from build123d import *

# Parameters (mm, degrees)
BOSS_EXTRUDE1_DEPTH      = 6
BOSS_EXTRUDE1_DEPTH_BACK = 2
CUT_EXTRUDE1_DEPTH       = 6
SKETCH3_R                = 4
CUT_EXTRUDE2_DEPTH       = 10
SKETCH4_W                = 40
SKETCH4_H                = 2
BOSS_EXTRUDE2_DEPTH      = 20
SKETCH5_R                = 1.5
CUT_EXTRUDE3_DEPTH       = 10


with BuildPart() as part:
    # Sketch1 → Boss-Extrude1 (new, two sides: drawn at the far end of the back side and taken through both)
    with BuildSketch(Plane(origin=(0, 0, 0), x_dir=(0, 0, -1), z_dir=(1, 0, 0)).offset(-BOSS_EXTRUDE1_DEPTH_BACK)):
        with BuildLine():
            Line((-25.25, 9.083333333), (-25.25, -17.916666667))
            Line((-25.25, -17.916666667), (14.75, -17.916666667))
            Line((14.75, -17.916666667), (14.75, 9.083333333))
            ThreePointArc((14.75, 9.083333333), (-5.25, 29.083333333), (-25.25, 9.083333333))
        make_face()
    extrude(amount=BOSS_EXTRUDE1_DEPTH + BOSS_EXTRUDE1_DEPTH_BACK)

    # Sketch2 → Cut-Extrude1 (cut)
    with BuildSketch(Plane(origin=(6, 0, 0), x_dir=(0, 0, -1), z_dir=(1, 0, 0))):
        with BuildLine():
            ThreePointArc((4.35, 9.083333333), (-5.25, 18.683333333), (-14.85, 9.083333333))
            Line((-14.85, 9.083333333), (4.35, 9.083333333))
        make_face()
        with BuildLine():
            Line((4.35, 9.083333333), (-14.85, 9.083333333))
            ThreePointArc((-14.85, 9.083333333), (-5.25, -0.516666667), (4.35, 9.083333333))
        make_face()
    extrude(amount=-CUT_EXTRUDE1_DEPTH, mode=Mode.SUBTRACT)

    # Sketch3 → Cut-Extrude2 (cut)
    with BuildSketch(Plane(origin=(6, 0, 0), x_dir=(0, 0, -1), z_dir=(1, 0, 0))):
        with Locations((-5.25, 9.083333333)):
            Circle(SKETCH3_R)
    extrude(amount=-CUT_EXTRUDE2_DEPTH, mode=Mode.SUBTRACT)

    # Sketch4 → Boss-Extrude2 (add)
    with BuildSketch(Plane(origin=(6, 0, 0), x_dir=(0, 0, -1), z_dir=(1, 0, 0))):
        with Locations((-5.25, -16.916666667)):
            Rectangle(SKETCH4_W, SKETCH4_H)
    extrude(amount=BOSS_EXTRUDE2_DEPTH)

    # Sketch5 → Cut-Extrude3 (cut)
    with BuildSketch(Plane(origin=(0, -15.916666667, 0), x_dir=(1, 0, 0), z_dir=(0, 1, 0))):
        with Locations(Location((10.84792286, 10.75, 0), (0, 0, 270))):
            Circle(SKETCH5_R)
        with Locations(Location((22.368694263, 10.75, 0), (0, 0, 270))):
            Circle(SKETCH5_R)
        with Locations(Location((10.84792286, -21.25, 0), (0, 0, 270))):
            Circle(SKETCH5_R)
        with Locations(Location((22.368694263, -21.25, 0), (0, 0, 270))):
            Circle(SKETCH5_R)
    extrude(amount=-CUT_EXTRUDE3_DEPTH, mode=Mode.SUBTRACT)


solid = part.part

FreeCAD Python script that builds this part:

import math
import FreeCAD as App
import Part
import Sketcher


def add_polygon(sketch, points):
    """Adds a closed chain of lines whose ends are joined by coincident constraints."""
    first, n = sketch.GeometryCount, len(points)
    for a, b in zip(points, points[1:] + points[:1]):
        sketch.addGeometry(Part.LineSegment(App.Vector(*a, 0), App.Vector(*b, 0)), False)
    for i in range(n):
        sketch.addConstraint(Sketcher.Constraint("Coincident", first + i, 2, first + (i + 1) % n, 1))

doc = App.newDocument("Part")
body = doc.addObject("PartDesign::Body", "Body")

sketch1 = doc.addObject("Sketcher::SketchObject", "Sketch")
body.addObject(sketch1)
sketch1.AttachmentSupport = (doc.YZ_Plane, [""])
sketch1.MapMode = "FlatFace"
sketch1.addGeometry([
    Part.LineSegment(App.Vector(9, 25, 0), App.Vector(-18, 25, 0)),
    Part.LineSegment(App.Vector(-18, 25, 0), App.Vector(-18, -15, 0)),
    Part.LineSegment(App.Vector(-18, -15, 0), App.Vector(9, -15, 0)),
    Part.ArcOfCircle(Part.Circle(App.Vector(9, 5, 0), App.Vector(0, 0, 1), 20), math.radians(-90), math.radians(90)),
], False)
sketch1.addConstraint([
    Sketcher.Constraint("Coincident", 0, 2, 1, 1),
    Sketcher.Constraint("Coincident", 1, 2, 2, 1),
    Sketcher.Constraint("Tangent", 2, 2, 3, 1),
    Sketcher.Constraint("Tangent", 3, 2, 0, 1),
    Sketcher.Constraint("Horizontal", 0),
    Sketcher.Constraint("Vertical", 1),
    Sketcher.Constraint("Horizontal", 2),
    Sketcher.Constraint("Radius", 3, 20.0),
    Sketcher.Constraint("DistanceX", 0, 2, 0, 1, 27.0),
    Sketcher.Constraint("DistanceY", -1, 1, 3, 3, 5.25),
    Sketcher.Constraint("DistanceX", -1, 1, 3, 3, 9.083333),
])
pad1 = doc.addObject("PartDesign::Pad", "Pad")
body.addObject(pad1)
pad1.Profile = sketch1
pad1.Type = "TwoLengths"
pad1.Length = 6
pad1.Length2 = 2

sketch2 = doc.addObject("Sketcher::SketchObject", "Sketch001")
body.addObject(sketch2)
sketch2.AttachmentSupport = (doc.YZ_Plane, [""])
sketch2.MapMode = "FlatFace"
sketch2.AttachmentOffset = App.Placement(App.Vector(0, 0, 6), App.Rotation())
sketch2.addGeometry(Part.Circle(App.Vector(9, 5, 0), App.Vector(0, 0, 1), 10), False)
sketch2.addConstraint([
    Sketcher.Constraint("Diameter", 0, 19.2),
    Sketcher.Constraint("DistanceY", -1, 1, 0, 3, 5.25),
    Sketcher.Constraint("DistanceX", -1, 1, 0, 3, 9.083333),
])
pocket1 = doc.addObject("PartDesign::Pocket", "Pocket")
body.addObject(pocket1)
pocket1.Profile = sketch2
pocket1.Length = 6

sketch3 = doc.addObject("Sketcher::SketchObject", "Sketch002")
body.addObject(sketch3)
sketch3.AttachmentSupport = (doc.YZ_Plane, [""])
sketch3.MapMode = "FlatFace"
sketch3.AttachmentOffset = App.Placement(App.Vector(0, 0, 6), App.Rotation())
sketch3.addGeometry(Part.Circle(App.Vector(9.1, 5.2, 0), App.Vector(0, 0, 1), 4), False)
sketch3.addConstraint([
    Sketcher.Constraint("Diameter", 0, 8.0),
    Sketcher.Constraint("DistanceY", -1, 1, 0, 3, 5.25),
    Sketcher.Constraint("DistanceX", -1, 1, 0, 3, 9.083333),
])
pocket2 = doc.addObject("PartDesign::Pocket", "Pocket001")
body.addObject(pocket2)
pocket2.Profile = sketch3
pocket2.Length = 10

sketch4 = doc.addObject("Sketcher::SketchObject", "Sketch003")
body.addObject(sketch4)
sketch4.AttachmentSupport = (doc.YZ_Plane, [""])
sketch4.MapMode = "FlatFace"
sketch4.AttachmentOffset = App.Placement(App.Vector(0, 0, 6), App.Rotation())
add_polygon(sketch4, [(-15.9, 25.2), (-17.9, 25.2), (-17.9, -14.8), (-15.9, -14.8)])
sketch4.addConstraint([
    Sketcher.Constraint("Horizontal", 0),
    Sketcher.Constraint("Vertical", 1),
    Sketcher.Constraint("Horizontal", 2),
    Sketcher.Constraint("Vertical", 3),
    Sketcher.Constraint("DistanceX", 0, 2, 0, 1, 2.0),
    Sketcher.Constraint("DistanceY", 1, 2, 1, 1, 40.0),
    Sketcher.Constraint("DistanceY", -1, 1, 0, 2, 25.25),
    Sketcher.Constraint("DistanceX", 0, 2, -1, 1, 17.916667),
])
pad2 = doc.addObject("PartDesign::Pad", "Pad001")
body.addObject(pad2)
pad2.Profile = sketch4
pad2.Length = 20

sketch5 = doc.addObject("Sketcher::SketchObject", "Sketch004")
body.addObject(sketch5)
sketch5.AttachmentSupport = (doc.XZ_Plane, [""])
sketch5.MapMode = "FlatFace"
sketch5.AttachmentOffset = App.Placement(App.Vector(0, 0, 15.916667), App.Rotation())
sketch5.addGeometry([
    Part.Circle(App.Vector(10.8, -10.8, 0), App.Vector(0, 0, 1), 1.5),
    Part.Circle(App.Vector(22.4, -10.8, 0), App.Vector(0, 0, 1), 1.5),
    Part.Circle(App.Vector(10.8, 21.2, 0), App.Vector(0, 0, 1), 1.5),
    Part.Circle(App.Vector(22.4, 21.2, 0), App.Vector(0, 0, 1), 1.5),
], False)
sketch5.addConstraint([
    Sketcher.Constraint("Equal", 0, 1),
    Sketcher.Constraint("Equal", 1, 2),
    Sketcher.Constraint("Equal", 2, 3),
    Sketcher.Constraint("Horizontal", 0, 3, 1, 3),
    Sketcher.Constraint("Horizontal", 2, 3, 3, 3),
    Sketcher.Constraint("Vertical", 0, 3, 2, 3),
    Sketcher.Constraint("Vertical", 1, 3, 3, 3),
    Sketcher.Constraint("Diameter", 0, 3.0),
    Sketcher.Constraint("DistanceY", 0, 3, 2, 3, 32.0),
    Sketcher.Constraint("DistanceY", 0, 3, -1, 1, 10.75),
    Sketcher.Constraint("DistanceX", 0, 3, 1, 3, 11.520771),
    Sketcher.Constraint("DistanceX", -1, 1, 0, 3, 10.847923),
])
pocket3 = doc.addObject("PartDesign::Pocket", "Pocket002")
body.addObject(pocket3)
pocket3.Profile = sketch5
pocket3.Length = 10
pocket3.Reversed = True

doc.recompute()
